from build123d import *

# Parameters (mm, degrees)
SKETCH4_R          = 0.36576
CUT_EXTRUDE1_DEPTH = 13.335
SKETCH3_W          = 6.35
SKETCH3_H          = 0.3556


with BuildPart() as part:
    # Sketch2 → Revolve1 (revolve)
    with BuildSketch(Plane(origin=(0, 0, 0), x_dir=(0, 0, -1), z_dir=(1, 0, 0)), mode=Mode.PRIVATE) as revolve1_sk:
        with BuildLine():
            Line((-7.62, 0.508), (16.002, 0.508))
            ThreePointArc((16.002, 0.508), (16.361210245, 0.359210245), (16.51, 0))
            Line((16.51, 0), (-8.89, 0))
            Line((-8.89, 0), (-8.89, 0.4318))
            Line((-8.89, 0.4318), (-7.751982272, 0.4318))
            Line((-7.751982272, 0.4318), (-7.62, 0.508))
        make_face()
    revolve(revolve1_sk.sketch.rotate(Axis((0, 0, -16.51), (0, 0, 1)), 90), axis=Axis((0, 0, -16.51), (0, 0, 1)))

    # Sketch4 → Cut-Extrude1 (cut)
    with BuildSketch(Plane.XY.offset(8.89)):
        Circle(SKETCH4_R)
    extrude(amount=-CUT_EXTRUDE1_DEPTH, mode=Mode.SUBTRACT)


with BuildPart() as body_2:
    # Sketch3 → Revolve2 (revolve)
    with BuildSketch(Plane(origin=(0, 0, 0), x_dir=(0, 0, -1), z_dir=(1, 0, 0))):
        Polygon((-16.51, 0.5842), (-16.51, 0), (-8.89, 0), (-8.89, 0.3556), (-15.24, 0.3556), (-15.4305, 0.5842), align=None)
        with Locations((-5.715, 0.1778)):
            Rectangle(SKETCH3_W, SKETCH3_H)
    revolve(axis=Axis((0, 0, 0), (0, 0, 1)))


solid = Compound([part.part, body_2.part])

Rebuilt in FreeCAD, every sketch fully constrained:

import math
import FreeCAD as App
import Part
import Sketcher
Q = App.Units.Quantity


def add_polygon(sketch, points):
    """Adds a closed chain of lines whose ends are joined by coincident constraints."""
    first, n = sketch.GeometryCount, len(points)
    for a, b in zip(points, points[1:] + points[:1]):
        sketch.addGeometry(Part.LineSegment(App.Vector(*a, 0), App.Vector(*b, 0)), False)
    for i in range(n):
        sketch.addConstraint(Sketcher.Constraint("Coincident", first + i, 2, first + (i + 1) % n, 1))

doc = App.newDocument("Part")
body = doc.addObject("PartDesign::Body", "Body")

# Sketch on YZ plane
sketch1 = body.newObject("Sketcher::SketchObject", "Sketch")
sketch1.AttachmentSupport = (doc.getObject("YZ_Plane"), [""])
sketch1.MapMode = "FlatFace"
sketch1.addGeometry([
    Part.LineSegment(App.Vector(0.508, -16.002, 0), App.Vector(0.508, 7.62, 0)),  # 0
    Part.LineSegment(App.Vector(0.508, 7.62, 0), App.Vector(0.4318, 7.751982, 0)),  # 1
    Part.LineSegment(App.Vector(0.4318, 7.751982, 0), App.Vector(0.4318, 8.89, 0)),  # 2
    Part.LineSegment(App.Vector(0.4318, 8.89, 0), App.Vector(0, 8.89, 0)),  # 3
    Part.LineSegment(App.Vector(0, 8.89, 0), App.Vector(0, -16.51, 0)),  # 4
    Part.ArcOfCircle(Part.Circle(App.Vector(0, -16.002, 0), App.Vector(0, 0, 1), 0.508), math.radians(-90), math.radians(0)),  # 5
], False)
sketch1.addConstraint([
    Sketcher.Constraint("Coincident", 0, 2, 1, 1),
    Sketcher.Constraint("Coincident", 1, 2, 2, 1),
    Sketcher.Constraint("Coincident", 2, 2, 3, 1),
    Sketcher.Constraint("Coincident", 3, 2, 4, 1),
    Sketcher.Constraint("Coincident", 4, 2, 5, 1),
    Sketcher.Constraint("Tangent", 5, 2, 0, 1),
    Sketcher.Constraint("Vertical", 0),
    Sketcher.Constraint("Vertical", 2),
    Sketcher.Constraint("Horizontal", 3),
    Sketcher.Constraint("Vertical", 4),
    Sketcher.Constraint("PointOnObject", 5, 3, -2),
    Sketcher.Constraint("PointOnObject", 3, 2, -2),
    Sketcher.Constraint("DistanceY", 4, 2, 4, 1, Q("1 in")),
    Sketcher.Constraint("Radius", 5, Q("0.02 in")),
    Sketcher.Constraint("Angle", 1, Q("120 deg")),
    Sketcher.Constraint("DistanceY", 0, 1, 0, 2, Q("0.93 in")),
    Sketcher.Constraint("DistanceY", -1, 1, 0, 2, Q("0.3 in")),
    Sketcher.Constraint("DistanceX", 3, 2, 3, 1, Q("0.017 in")),
])
revolution = body.newObject("PartDesign::Revolution", "Revolution")
revolution.Profile = sketch1
revolution.ReferenceAxis = (sketch1, ["V_Axis"])
revolution.Angle = 360

# Sketch on XY plane
sketch2 = body.newObject("Sketcher::SketchObject", "Sketch001")
sketch2.AttachmentSupport = (doc.getObject("XY_Plane"), [""])
sketch2.MapMode = "FlatFace"
sketch2.AttachmentOffset = App.Placement(App.Vector(0, 0, 0.35 * 25.4), App.Rotation())
sketch2.addGeometry(Part.Circle(App.Vector(0, 0, 0), App.Vector(0, 0, 1), 0.36576), False)
sketch2.addConstraint([
    Sketcher.Constraint("Coincident", 0, 3, -1, 1),
    Sketcher.Constraint("Diameter", 0, Q("0.0288 in")),
])
pocket1 = body.newObject("PartDesign::Pocket", "Pocket")
pocket1.Profile = sketch2
pocket1.Length = Q("0.525 in")
body2 = doc.addObject("PartDesign::Body", "Body001")

# Sketch on YZ plane
sketch3 = body2.newObject("Sketcher::SketchObject", "Sketch002")
sketch3.AttachmentSupport = (doc.getObject("YZ_Plane001"), [""])
sketch3.MapMode = "FlatFace"
add_polygon(sketch3, [(0.5842, 16.51), (0, 16.51), (0, 2.54), (0.3556, 2.54), (0.3556, 15.24), (0.5842, 15.4305)])  # lines 0-5
sketch3.addConstraint([
    Sketcher.Constraint("Horizontal", 0),
    Sketcher.Constraint("Vertical", 1),
    Sketcher.Constraint("Horizontal", 2),
    Sketcher.Constraint("Vertical", 3),
    Sketcher.Constraint("Vertical", 5),
    Sketcher.Constraint("PointOnObject", 0, 2, -2),
    Sketcher.Constraint("DistanceY", 3, 1, 3, 2, Q("0.5 in")),
    Sketcher.Constraint("DistanceY", 1, 2, 1, 1, Q("0.55 in")),
    Sketcher.Constraint("DistanceY", -1, 1, 1, 2, Q("0.1 in")),
    Sketcher.Constraint("DistanceX", 0, 2, 0, 1, Q("0.023 in")),
    Sketcher.Constraint("DistanceX", 2, 1, 2, 2, Q("0.014 in")),
    Sketcher.Constraint("DistanceY", 5, 1, 5, 2, Q("0.0425 in")),
])
revolution2 = body2.newObject("PartDesign::Revolution", "Revolution001")
revolution2.Profile = sketch3
revolution2.ReferenceAxis = (sketch3, ["V_Axis"])
revolution2.Angle = 360

doc.recompute()
